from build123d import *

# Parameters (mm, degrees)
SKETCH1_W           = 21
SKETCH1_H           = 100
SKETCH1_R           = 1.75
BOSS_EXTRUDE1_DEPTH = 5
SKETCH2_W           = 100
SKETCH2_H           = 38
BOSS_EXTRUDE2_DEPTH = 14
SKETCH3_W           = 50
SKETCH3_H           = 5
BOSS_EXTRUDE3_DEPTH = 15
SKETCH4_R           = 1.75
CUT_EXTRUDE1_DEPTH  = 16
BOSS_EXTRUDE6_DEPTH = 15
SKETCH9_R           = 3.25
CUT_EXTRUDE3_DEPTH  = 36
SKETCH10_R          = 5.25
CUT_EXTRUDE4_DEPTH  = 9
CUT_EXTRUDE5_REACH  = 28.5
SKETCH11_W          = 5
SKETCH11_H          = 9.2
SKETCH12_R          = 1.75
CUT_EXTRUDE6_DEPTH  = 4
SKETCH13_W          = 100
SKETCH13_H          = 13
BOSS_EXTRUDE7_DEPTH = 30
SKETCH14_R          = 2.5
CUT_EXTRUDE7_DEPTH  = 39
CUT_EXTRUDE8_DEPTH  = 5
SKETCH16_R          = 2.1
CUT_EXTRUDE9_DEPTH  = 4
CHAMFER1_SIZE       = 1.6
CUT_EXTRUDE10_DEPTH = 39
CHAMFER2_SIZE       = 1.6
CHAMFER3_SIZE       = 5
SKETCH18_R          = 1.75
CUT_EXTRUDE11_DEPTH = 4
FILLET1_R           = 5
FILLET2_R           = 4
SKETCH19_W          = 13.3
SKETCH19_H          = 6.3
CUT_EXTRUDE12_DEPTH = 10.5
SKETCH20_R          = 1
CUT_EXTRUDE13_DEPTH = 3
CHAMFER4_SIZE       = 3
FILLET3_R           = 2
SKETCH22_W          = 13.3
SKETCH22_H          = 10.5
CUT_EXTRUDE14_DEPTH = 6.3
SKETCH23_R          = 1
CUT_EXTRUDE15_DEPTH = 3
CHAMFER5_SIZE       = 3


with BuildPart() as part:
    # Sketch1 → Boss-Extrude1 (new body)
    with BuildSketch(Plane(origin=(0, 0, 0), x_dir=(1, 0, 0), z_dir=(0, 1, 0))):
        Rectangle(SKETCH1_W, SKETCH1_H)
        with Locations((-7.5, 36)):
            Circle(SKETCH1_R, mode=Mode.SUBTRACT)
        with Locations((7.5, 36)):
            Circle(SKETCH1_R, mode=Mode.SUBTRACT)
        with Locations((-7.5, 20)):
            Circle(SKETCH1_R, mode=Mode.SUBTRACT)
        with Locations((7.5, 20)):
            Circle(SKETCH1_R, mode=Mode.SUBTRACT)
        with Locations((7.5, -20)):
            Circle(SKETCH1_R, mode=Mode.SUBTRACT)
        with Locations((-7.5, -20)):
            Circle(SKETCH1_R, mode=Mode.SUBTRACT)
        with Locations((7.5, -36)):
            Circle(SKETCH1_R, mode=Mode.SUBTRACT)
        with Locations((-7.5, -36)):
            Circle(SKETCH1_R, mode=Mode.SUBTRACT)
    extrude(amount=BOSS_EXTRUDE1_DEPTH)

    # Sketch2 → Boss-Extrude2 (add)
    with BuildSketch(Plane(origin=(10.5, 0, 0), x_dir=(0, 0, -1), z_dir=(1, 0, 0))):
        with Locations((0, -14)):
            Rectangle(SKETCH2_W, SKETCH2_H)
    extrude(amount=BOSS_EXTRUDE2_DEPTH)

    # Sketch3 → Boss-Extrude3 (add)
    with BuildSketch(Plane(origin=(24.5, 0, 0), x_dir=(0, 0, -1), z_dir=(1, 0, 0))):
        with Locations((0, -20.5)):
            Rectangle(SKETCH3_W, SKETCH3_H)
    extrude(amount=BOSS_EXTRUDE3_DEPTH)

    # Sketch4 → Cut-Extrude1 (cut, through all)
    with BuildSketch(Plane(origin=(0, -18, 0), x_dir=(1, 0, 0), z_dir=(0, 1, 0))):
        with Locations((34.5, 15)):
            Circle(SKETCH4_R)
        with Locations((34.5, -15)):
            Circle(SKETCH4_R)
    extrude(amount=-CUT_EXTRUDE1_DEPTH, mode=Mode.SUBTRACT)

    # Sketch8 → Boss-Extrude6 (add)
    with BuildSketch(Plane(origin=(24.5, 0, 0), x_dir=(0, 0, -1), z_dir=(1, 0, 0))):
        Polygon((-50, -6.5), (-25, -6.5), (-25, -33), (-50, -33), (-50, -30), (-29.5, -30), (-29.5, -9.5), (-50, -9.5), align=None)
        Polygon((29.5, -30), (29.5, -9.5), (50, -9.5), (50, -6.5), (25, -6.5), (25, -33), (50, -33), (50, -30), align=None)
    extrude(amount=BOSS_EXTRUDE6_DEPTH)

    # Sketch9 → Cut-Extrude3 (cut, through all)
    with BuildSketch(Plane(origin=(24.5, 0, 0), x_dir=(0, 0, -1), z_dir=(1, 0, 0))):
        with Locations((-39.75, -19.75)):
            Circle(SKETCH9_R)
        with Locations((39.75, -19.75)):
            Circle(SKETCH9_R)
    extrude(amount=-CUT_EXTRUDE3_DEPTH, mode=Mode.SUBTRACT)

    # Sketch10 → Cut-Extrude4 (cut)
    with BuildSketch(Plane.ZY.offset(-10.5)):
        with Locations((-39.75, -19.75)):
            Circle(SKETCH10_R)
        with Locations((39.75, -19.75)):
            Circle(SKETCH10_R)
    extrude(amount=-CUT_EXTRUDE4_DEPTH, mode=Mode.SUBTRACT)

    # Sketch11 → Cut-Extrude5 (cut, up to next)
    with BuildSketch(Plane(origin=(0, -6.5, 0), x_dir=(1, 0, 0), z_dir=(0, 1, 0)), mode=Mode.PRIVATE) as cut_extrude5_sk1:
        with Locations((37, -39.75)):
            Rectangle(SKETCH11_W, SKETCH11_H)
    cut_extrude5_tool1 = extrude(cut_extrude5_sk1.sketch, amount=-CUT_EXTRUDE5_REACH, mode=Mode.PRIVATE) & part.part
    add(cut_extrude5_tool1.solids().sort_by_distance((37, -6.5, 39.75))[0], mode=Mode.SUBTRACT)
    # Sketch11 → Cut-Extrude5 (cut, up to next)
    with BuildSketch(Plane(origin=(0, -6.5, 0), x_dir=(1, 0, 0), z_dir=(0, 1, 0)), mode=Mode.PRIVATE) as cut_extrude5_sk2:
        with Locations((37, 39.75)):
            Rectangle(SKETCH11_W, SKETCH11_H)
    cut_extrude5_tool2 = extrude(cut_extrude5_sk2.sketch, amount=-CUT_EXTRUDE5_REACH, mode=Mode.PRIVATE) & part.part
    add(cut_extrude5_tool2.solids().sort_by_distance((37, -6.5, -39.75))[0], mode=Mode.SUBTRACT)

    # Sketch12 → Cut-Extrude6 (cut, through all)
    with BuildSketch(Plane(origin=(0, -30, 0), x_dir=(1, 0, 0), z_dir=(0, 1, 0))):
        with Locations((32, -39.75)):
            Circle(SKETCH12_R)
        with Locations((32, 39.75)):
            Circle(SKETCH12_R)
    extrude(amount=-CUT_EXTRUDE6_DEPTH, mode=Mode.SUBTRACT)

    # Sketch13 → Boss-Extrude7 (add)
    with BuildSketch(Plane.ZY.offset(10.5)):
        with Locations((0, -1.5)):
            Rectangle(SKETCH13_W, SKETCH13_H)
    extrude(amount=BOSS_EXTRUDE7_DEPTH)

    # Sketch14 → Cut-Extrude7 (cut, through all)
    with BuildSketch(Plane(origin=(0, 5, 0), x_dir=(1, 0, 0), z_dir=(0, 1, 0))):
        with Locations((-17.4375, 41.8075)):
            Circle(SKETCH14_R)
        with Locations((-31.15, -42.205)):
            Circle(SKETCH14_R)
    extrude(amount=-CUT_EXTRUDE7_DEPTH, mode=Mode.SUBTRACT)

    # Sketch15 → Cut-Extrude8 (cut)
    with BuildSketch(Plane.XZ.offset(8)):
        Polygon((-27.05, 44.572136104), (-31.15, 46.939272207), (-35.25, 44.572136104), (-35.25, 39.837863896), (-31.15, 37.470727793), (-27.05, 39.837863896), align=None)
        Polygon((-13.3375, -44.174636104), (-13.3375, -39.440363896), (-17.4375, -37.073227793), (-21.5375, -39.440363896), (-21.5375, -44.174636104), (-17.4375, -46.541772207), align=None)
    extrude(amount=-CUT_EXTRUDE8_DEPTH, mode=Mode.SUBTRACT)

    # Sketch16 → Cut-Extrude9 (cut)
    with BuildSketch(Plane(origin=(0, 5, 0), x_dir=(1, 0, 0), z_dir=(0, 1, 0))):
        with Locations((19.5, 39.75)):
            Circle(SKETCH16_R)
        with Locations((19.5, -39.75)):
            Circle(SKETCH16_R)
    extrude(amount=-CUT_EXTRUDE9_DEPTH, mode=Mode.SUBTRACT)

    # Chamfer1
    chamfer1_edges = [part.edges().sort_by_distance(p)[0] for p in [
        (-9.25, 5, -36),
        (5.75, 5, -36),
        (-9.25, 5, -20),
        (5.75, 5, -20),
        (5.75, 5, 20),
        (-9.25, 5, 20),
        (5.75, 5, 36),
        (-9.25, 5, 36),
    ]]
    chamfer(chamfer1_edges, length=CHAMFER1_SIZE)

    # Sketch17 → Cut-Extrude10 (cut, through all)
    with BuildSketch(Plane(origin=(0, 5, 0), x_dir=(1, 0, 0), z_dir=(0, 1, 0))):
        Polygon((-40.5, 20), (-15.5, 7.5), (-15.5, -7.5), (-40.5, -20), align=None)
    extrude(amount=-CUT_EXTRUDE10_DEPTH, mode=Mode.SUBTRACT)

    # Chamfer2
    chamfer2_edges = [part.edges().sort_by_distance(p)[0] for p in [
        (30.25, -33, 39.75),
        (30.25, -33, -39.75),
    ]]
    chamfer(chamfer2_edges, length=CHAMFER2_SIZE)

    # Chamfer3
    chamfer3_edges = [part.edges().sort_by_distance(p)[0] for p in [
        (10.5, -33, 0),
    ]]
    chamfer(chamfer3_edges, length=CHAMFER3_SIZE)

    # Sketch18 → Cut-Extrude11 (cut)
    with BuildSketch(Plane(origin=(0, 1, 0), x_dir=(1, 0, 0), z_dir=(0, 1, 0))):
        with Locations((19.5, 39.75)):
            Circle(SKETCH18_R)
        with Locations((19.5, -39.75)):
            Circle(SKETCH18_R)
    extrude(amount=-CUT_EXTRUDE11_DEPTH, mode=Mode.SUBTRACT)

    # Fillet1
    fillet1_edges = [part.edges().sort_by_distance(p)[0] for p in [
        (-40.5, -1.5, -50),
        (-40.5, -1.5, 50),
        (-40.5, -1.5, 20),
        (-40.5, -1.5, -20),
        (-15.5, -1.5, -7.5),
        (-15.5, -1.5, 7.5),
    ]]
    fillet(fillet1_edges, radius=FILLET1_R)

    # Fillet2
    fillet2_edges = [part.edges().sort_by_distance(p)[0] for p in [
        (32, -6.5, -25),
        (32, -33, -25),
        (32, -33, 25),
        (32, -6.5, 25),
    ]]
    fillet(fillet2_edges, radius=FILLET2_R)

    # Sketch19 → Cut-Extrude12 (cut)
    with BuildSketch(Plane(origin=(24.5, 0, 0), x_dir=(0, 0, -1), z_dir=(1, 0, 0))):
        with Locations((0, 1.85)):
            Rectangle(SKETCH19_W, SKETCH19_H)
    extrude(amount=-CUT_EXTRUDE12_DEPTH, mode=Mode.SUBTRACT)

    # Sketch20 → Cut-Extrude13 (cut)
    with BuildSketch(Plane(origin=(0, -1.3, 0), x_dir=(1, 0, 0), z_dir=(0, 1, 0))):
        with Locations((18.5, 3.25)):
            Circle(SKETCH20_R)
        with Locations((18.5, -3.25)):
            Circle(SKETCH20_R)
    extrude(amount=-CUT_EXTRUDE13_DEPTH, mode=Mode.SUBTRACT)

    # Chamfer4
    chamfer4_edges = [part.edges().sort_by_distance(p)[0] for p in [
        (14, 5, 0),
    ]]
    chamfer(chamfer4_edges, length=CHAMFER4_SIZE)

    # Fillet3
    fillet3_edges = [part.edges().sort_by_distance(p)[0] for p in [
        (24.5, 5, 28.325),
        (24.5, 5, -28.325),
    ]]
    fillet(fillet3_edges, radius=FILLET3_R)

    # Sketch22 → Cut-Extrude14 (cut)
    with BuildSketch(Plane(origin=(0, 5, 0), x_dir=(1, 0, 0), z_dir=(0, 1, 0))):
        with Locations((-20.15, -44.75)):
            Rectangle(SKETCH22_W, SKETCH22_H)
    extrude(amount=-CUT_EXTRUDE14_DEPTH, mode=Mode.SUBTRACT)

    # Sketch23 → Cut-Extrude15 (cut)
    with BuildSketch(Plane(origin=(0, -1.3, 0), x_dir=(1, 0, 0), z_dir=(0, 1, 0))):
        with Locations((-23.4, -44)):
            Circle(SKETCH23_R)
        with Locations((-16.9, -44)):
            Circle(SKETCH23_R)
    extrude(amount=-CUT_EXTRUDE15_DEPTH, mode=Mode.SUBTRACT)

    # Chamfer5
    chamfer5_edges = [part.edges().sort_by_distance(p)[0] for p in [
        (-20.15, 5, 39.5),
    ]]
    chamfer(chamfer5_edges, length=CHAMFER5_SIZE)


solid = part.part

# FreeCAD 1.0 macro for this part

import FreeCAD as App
import Part
import Sketcher
from FreeCAD import Vector
Q = App.Units.Quantity


def edges_at(feature, points):
    """Names of the edges that pass closest to the given points."""
    edges = feature.Shape.Edges
    near = lambda p: min(range(len(edges)), key=lambda i: edges[i].distToShape(Part.Vertex(*p))[0])
    return sorted({f"Edge{near(p) + 1}" for p in points})


def add_polygon(sketch, points):
    """Adds a closed chain of lines whose ends are joined by coincident constraints."""
    first, n = sketch.GeometryCount, len(points)
    for a, b in zip(points, points[1:] + points[:1]):
        sketch.addGeometry(Part.LineSegment(App.Vector(*a, 0), App.Vector(*b, 0)), False)
    for i in range(n):
        sketch.addConstraint(Sketcher.Constraint("Coincident", first + i, 2, first + (i + 1) % n, 1))

doc = App.newDocument("Part")
body = doc.addObject("PartDesign::Body", "Body")

# Sketch on XZ plane
sketch1 = doc.addObject("Sketcher::SketchObject", "Sketch")
body.addObject(sketch1)
sketch1.AttachmentSupport = (doc.XZ_Plane, [""])
sketch1.MapMode = "FlatFace"
add_polygon(sketch1, [(-10.5, -50), (-10.5, 50), (10.5, 50), (10.5, -50)])  # lines 0-3
sketch1.addGeometry(Part.Circle(Vector(-7.5, 36, 0), Vector(0, 0, 1), 1.8), False)  # 4
sketch1.addGeometry(Part.Circle(Vector(-7.5, 20, 0), Vector(0, 0, 1), 1.8), False)  # 5
sketch1.addGeometry(Part.Circle(Vector(7.5, 36, 0), Vector(0, 0, 1), 1.8), False)  # 6
sketch1.addGeometry(Part.Circle(Vector(7.5, 20, 0), Vector(0, 0, 1), 1.8), False)  # 7
sketch1.addGeometry(Part.Circle(Vector(-7.5, -20, 0), Vector(0, 0, 1), 1.8), False)  # 8
sketch1.addGeometry(Part.Circle(Vector(-7.5, -36, 0), Vector(0, 0, 1), 1.8), False)  # 9
sketch1.addGeometry(Part.Circle(Vector(7.5, -20, 0), Vector(0, 0, 1), 1.8), False)  # 10
sketch1.addGeometry(Part.Circle(Vector(7.5, -36, 0), Vector(0, 0, 1), 1.8), False)  # 11
sketch1.addConstraint([
    Sketcher.Constraint("Vertical", 0),
    Sketcher.Constraint("Horizontal", 1),
    Sketcher.Constraint("Vertical", 2),
    Sketcher.Constraint("Horizontal", 3),
    Sketcher.Constraint("Equal", 4, 5),
    Sketcher.Constraint("Equal", 5, 6),
    Sketcher.Constraint("Equal", 6, 7),
    Sketcher.Constraint("Equal", 7, 8),
    Sketcher.Constraint("Equal", 8, 9),
    Sketcher.Constraint("Equal", 9, 10),
    Sketcher.Constraint("Equal", 10, 11),
    Sketcher.Constraint("Symmetric", 7, 3, 8, 3, -1, 1),
    Sketcher.Constraint("Symmetric", 6, 3, 9, 3, -1, 1),
    Sketcher.Constraint("Symmetric", 5, 3, 10, 3, -1, 1),
    Sketcher.Constraint("Symmetric", 4, 3, 11, 3, -1, 1),
    Sketcher.Constraint("Symmetric", 0, 2, 2, 2, -1, 1),
    Sketcher.Constraint("Symmetric", 4, 3, 6, 3, -2),
    Sketcher.Constraint("Symmetric", 5, 3, 7, 3, -2),
    Sketcher.Constraint("Vertical", 4, 3, 5, 3),
    Sketcher.Constraint("Diameter", 4, 3.5),
    Sketcher.Constraint("DistanceX", 1, 1, 1, 2, 21.0),
    Sketcher.Constraint("DistanceY", 0, 1, 0, 2, 100.0),
    Sketcher.Constraint("DistanceY", -1, 1, 4, 3, 36.0),
    Sketcher.Constraint("DistanceY", -1, 1, 5, 3, 20.0),
    Sketcher.Constraint("DistanceX", 4, 3, 6, 3, 15.0),
])
pad1 = doc.addObject("PartDesign::Pad", "Pad")
body.addObject(pad1)
pad1.Profile = sketch1
pad1.Length = 5
pad1.Reversed = True

# Sketch on YZ plane
sketch2 = doc.addObject("Sketcher::SketchObject", "Sketch001")
body.addObject(sketch2)
sketch2.AttachmentSupport = (doc.YZ_Plane, [""])
sketch2.MapMode = "FlatFace"
sketch2.AttachmentOffset = App.Placement(Vector(0, 0, 10.5), App.Rotation())
add_polygon(sketch2, [(5, 50), (-33, 50), (-33, -50), (5, -50)])  # lines 0-3
sketch2.addConstraint([
    Sketcher.Constraint("Horizontal", 0),
    Sketcher.Constraint("Vertical", 1),
    Sketcher.Constraint("Horizontal", 2),
    Sketcher.Constraint("Vertical", 3),
    Sketcher.Constraint("DistanceX", 0, 2, 0, 1, 38.0),
    Sketcher.Constraint("DistanceY", 1, 2, 1, 1, 100.0),
    Sketcher.Constraint("DistanceX", 0, 2, -1, 1, 33.0),
    Sketcher.Constraint("DistanceY", -1, 1, 0, 2, 50.0),
])
pad2 = doc.addObject("PartDesign::Pad", "Pad001")
body.addObject(pad2)
pad2.Profile = sketch2
pad2.Length = 14

# Sketch on YZ plane
sketch3 = doc.addObject("Sketcher::SketchObject", "Sketch002")
body.addObject(sketch3)
sketch3.AttachmentSupport = (doc.YZ_Plane, [""])
sketch3.MapMode = "FlatFace"
sketch3.AttachmentOffset = App.Placement(Vector(0, 0, 24.5), App.Rotation())
add_polygon(sketch3, [(-18, 25), (-23, 25), (-23, -25), (-18, -25)])  # lines 0-3
sketch3.addConstraint([
    Sketcher.Constraint("Horizontal", 0),
    Sketcher.Constraint("Vertical", 1),
    Sketcher.Constraint("Horizontal", 2),
    Sketcher.Constraint("Vertical", 3),
    Sketcher.Constraint("DistanceX", 0, 2, 0, 1, 5.0),
    Sketcher.Constraint("DistanceY", 1, 2, 1, 1, 50.0),
    Sketcher.Constraint("DistanceX", 0, 2, -1, 1, 23.0),
    Sketcher.Constraint("DistanceY", -1, 1, 0, 2, 25.0),
])
pad3 = doc.addObject("PartDesign::Pad", "Pad002")
body.addObject(pad3)
pad3.Profile = sketch3
pad3.Length = 15

# Sketch on XZ plane
sketch4 = doc.addObject("Sketcher::SketchObject", "Sketch003")
body.addObject(sketch4)
sketch4.AttachmentSupport = (doc.XZ_Plane, [""])
sketch4.MapMode = "FlatFace"
sketch4.AttachmentOffset = App.Placement(Vector(0, 0, 18), App.Rotation())
sketch4.addGeometry([
    Part.Circle(Vector(34.5, -15, 0), Vector(0, 0, 1), 1.8),
    Part.Circle(Vector(34.5, 15, 0), Vector(0, 0, 1), 1.8),
], False)
sketch4.addConstraint([
    Sketcher.Constraint("Equal", 0, 1),
    Sketcher.Constraint("Symmetric", 0, 3, 1, 3, -1),
    Sketcher.Constraint("Diameter", 0, 3.5),
    Sketcher.Constraint("DistanceY", 0, 3, -1, 1, 15.0),
    Sketcher.Constraint("DistanceX", -1, 1, 0, 3, 34.5),
])
pocket1 = doc.addObject("PartDesign::Pocket", "Pocket")
body.addObject(pocket1)
pocket1.Profile = sketch4
pocket1.Type = "ThroughAll"
pocket1.Reversed = True

# Sketch on YZ plane
sketch5 = doc.addObject("Sketcher::SketchObject", "Sketch004")
body.addObject(sketch5)
sketch5.AttachmentSupport = (doc.YZ_Plane, [""])
sketch5.MapMode = "FlatFace"
sketch5.AttachmentOffset = App.Placement(Vector(0, 0, 24.5), App.Rotation())
add_polygon(sketch5, [(-6.5, 25), (-6.5, 50), (-9.5, 50), (-9.5, 29.5), (-30, 29.5), (-30, 50), (-33, 50), (-33, 25)])  # lines 0-7
add_polygon(sketch5, [(-30, -29.5), (-9.5, -29.5), (-9.5, -50), (-6.5, -50), (-6.5, -25), (-33, -25), (-33, -50), (-30, -50)])  # lines 8-15
sketch5.addConstraint([
    Sketcher.Constraint("Vertical", 0),
    Sketcher.Constraint("Horizontal", 1),
    Sketcher.Constraint("Vertical", 2),
    Sketcher.Constraint("Horizontal", 3),
    Sketcher.Constraint("Vertical", 4),
    Sketcher.Constraint("Horizontal", 5),
    Sketcher.Constraint("Vertical", 6),
    Sketcher.Constraint("Horizontal", 7),
    Sketcher.Constraint("Horizontal", 8),
    Sketcher.Constraint("Vertical", 9),
    Sketcher.Constraint("Horizontal", 10),
    Sketcher.Constraint("Vertical", 11),
    Sketcher.Constraint("Horizontal", 12),
    Sketcher.Constraint("Vertical", 13),
    Sketcher.Constraint("Horizontal", 14),
    Sketcher.Constraint("Vertical", 15),
    Sketcher.Constraint("Symmetric", 2, 2, 8, 2, -1),
    Sketcher.Constraint("Symmetric", 0, 2, 10, 2, -1),
    Sketcher.Constraint("Symmetric", 6, 2, 12, 2, -1),
    Sketcher.Constraint("Symmetric", 4, 2, 14, 2, -1),
    Sketcher.Constraint("Horizontal", 1, 2, 4, 2),
    Sketcher.Constraint("Equal", 1, 5),
    Sketcher.Constraint("Equal", 8, 2),
    Sketcher.Constraint("DistanceX", 1, 2, 1, 1, 3.0),
    Sketcher.Constraint("DistanceY", 0, 1, 0, 2, 25.0),
    Sketcher.Constraint("DistanceX", 3, 2, 3, 1, 20.5),
    Sketcher.Constraint("DistanceY", -1, 1, 0, 2, 50.0),
    Sketcher.Constraint("DistanceX", 3, 2, -1, 1, 30.0),
])
pad4 = doc.addObject("PartDesign::Pad", "Pad003")
body.addObject(pad4)
pad4.Profile = sketch5
pad4.Length = 15

# Sketch on YZ plane
sketch6 = doc.addObject("Sketcher::SketchObject", "Sketch005")
body.addObject(sketch6)
sketch6.AttachmentSupport = (doc.YZ_Plane, [""])
sketch6.MapMode = "FlatFace"
sketch6.AttachmentOffset = App.Placement(Vector(0, 0, 24.5), App.Rotation())
sketch6.addGeometry([
    Part.Circle(Vector(-19.8, 39.8, 0), Vector(0, 0, 1), 3.2),
    Part.Circle(Vector(-19.8, -39.8, 0), Vector(0, 0, 1), 3.2),
], False)
sketch6.addConstraint([
    Sketcher.Constraint("Equal", 0, 1),
    Sketcher.Constraint("Symmetric", 0, 3, 1, 3, -1),
    Sketcher.Constraint("Diameter", 0, 6.5),
    Sketcher.Constraint("DistanceY", 1, 3, 0, 3, 79.5),
    Sketcher.Constraint("DistanceX", 0, 3, -1, 1, 19.75),
])
pocket2 = doc.addObject("PartDesign::Pocket", "Pocket001")
body.addObject(pocket2)
pocket2.Profile = sketch6
pocket2.Type = "ThroughAll"

# Sketch on YZ plane
sketch7 = doc.addObject("Sketcher::SketchObject", "Sketch006")
body.addObject(sketch7)
sketch7.AttachmentSupport = (doc.YZ_Plane, [""])
sketch7.MapMode = "FlatFace"
sketch7.AttachmentOffset = App.Placement(Vector(0, 0, 10.5), App.Rotation())
sketch7.addGeometry([
    Part.Circle(Vector(-20, -40, 0), Vector(0, 0, 1), 5),
    Part.Circle(Vector(-20, 40, 0), Vector(0, 0, 1), 5),
], False)
sketch7.addConstraint([
    Sketcher.Constraint("Equal", 0, 1),
    Sketcher.Constraint("Symmetric", 0, 3, 1, 3, -1),
    Sketcher.Constraint("Diameter", 0, 10.5),
    Sketcher.Constraint("DistanceY", 0, 3, 1, 3, 79.5),
    Sketcher.Constraint("DistanceX", 0, 3, -1, 1, 19.75),
])
pocket3 = doc.addObject("PartDesign::Pocket", "Pocket002")
body.addObject(pocket3)
pocket3.Profile = sketch7
pocket3.Length = 9
pocket3.Reversed = True

# Sketch on XZ plane
sketch8 = doc.addObject("Sketcher::SketchObject", "Sketch007")
body.addObject(sketch8)
sketch8.AttachmentSupport = (doc.XZ_Plane, [""])
sketch8.MapMode = "FlatFace"
sketch8.AttachmentOffset = App.Placement(Vector(0, 0, 6.5), App.Rotation())
add_polygon(sketch8, [(34, 35), (34, 44), (40, 44), (40, 35)])  # lines 0-3
sketch8.addConstraint([
    Sketcher.Constraint("Vertical", 0),
    Sketcher.Constraint("Horizontal", 1),
    Sketcher.Constraint("Vertical", 2),
    Sketcher.Constraint("Horizontal", 3),
    Sketcher.Constraint("DistanceX", 1, 1, 1, 2, 5.0),
    Sketcher.Constraint("DistanceY", 0, 1, 0, 2, 9.2),
    Sketcher.Constraint("DistanceX", -1, 1, 0, 2, 34.5),
    Sketcher.Constraint("DistanceY", -1, 1, 0, 2, 44.35),
])
pocket4 = doc.addObject("PartDesign::Pocket", "Pocket003")
body.addObject(pocket4)
pocket4.Profile = sketch8
pocket4.Type = "UpToFirst"
pocket4.Reversed = True

# Sketch on XZ plane
sketch9 = doc.addObject("Sketcher::SketchObject", "Sketch008")
body.addObject(sketch9)
sketch9.AttachmentSupport = (doc.XZ_Plane, [""])
sketch9.MapMode = "FlatFace"
sketch9.AttachmentOffset = App.Placement(Vector(0, 0, 6.5), App.Rotation())
add_polygon(sketch9, [(34, -44), (34, -35), (40, -35), (40, -44)])  # lines 0-3
sketch9.addConstraint([
    Sketcher.Constraint("Vertical", 0),
    Sketcher.Constraint("Horizontal", 1),
    Sketcher.Constraint("Vertical", 2),
    Sketcher.Constraint("Horizontal", 3),
    Sketcher.Constraint("DistanceX", 1, 1, 1, 2, 5.0),
    Sketcher.Constraint("DistanceY", 0, 1, 0, 2, 9.2),
    Sketcher.Constraint("DistanceX", -1, 1, 0, 2, 34.5),
    Sketcher.Constraint("DistanceY", 0, 2, -1, 1, 35.15),
])
pocket5 = doc.addObject("PartDesign::Pocket", "Pocket004")
body.addObject(pocket5)
pocket5.Profile = sketch9
pocket5.Type = "UpToFirst"
pocket5.Reversed = True

# Sketch on XZ plane
sketch10 = doc.addObject("Sketcher::SketchObject", "Sketch009")
body.addObject(sketch10)
sketch10.AttachmentSupport = (doc.XZ_Plane, [""])
sketch10.MapMode = "FlatFace"
sketch10.AttachmentOffset = App.Placement(Vector(0, 0, 30), App.Rotation())
sketch10.addGeometry([
    Part.Circle(Vector(32, 39.8, 0), Vector(0, 0, 1), 1.8),
    Part.Circle(Vector(32, -39.8, 0), Vector(0, 0, 1), 1.8),
], False)
sketch10.addConstraint([
    Sketcher.Constraint("Equal", 0, 1),
    Sketcher.Constraint("Symmetric", 0, 3, 1, 3, -1),
    Sketcher.Constraint("Diameter", 0, 3.5),
    Sketcher.Constraint("DistanceX", -1, 1, 0, 3, 32.0),
    Sketcher.Constraint("DistanceY", 1, 3, 0, 3, 79.5),
])
pocket6 = doc.addObject("PartDesign::Pocket", "Pocket005")
body.addObject(pocket6)
pocket6.Profile = sketch10
pocket6.Type = "ThroughAll"
pocket6.Reversed = True

# Sketch on YZ plane
sketch11 = doc.addObject("Sketcher::SketchObject", "Sketch010")
body.addObject(sketch11)
sketch11.AttachmentSupport = (doc.YZ_Plane, [""])
sketch11.MapMode = "FlatFace"
sketch11.AttachmentOffset = App.Placement(Vector(0, 0, -10.5), App.Rotation())
add_polygon(sketch11, [(5, -50), (-8, -50), (-8, 50), (5, 50)])  # lines 0-3
sketch11.addConstraint([
    Sketcher.Constraint("Horizontal", 0),
    Sketcher.Constraint("Vertical", 1),
    Sketcher.Constraint("Horizontal", 2),
    Sketcher.Constraint("Vertical", 3),
    Sketcher.Constraint("DistanceX", 0, 2, 0, 1, 13.0),
    Sketcher.Constraint("DistanceY", 1, 1, 1, 2, 100.0),
    Sketcher.Constraint("DistanceX", 0, 2, -1, 1, 8.0),
    Sketcher.Constraint("DistanceY", 0, 2, -1, 1, 50.0),
])
pad5 = doc.addObject("PartDesign::Pad", "Pad004")
body.addObject(pad5)
pad5.Profile = sketch11
pad5.Length = 30
pad5.Reversed = True

# Sketch on XZ plane
sketch12 = doc.addObject("Sketcher::SketchObject", "Sketch011")
body.addObject(sketch12)
sketch12.AttachmentSupport = (doc.XZ_Plane, [""])
sketch12.MapMode = "FlatFace"
sketch12.AttachmentOffset = App.Placement(Vector(0, 0, -5), App.Rotation())
sketch12.addGeometry([
    Part.Circle(Vector(-17.4, -41.8, 0), Vector(0, 0, 1), 2.5),
    Part.Circle(Vector(-31.1, 42.2, 0), Vector(0, 0, 1), 2.5),
], False)
sketch12.addConstraint([
    Sketcher.Constraint("Equal", 0, 1),
    Sketcher.Constraint("Diameter", 0, 5.0),
    Sketcher.Constraint("DistanceX", 1, 3, -1, 1, 31.15),
    Sketcher.Constraint("DistanceY", -1, 1, 1, 3, 42.205),
    Sketcher.Constraint("DistanceX", 0, 3, -1, 1, 17.4375),
    Sketcher.Constraint("DistanceY", 0, 3, -1, 1, 41.8075),
])
pocket7 = doc.addObject("PartDesign::Pocket", "Pocket006")
body.addObject(pocket7)
pocket7.Profile = sketch12
pocket7.Type = "ThroughAll"
pocket7.Reversed = True

# Sketch on XZ plane
sketch13 = doc.addObject("Sketcher::SketchObject", "Sketch012")
body.addObject(sketch13)
sketch13.AttachmentSupport = (doc.XZ_Plane, [""])
sketch13.MapMode = "FlatFace"
sketch13.AttachmentOffset = App.Placement(Vector(0, 0, 8), App.Rotation())
add_polygon(sketch13, [(-27.1, 44.6), (-31.1, 46.9), (-35.2, 44.6), (-35.2, 39.8), (-31.1, 37.5), (-27.1, 39.8)])  # lines 0-5
add_polygon(sketch13, [(-13.3, -44.2), (-13.3, -39.4), (-17.4, -37.1), (-21.5, -39.4), (-21.5, -44.2), (-17.4, -46.5)])  # lines 6-11
sketch13.addConstraint([
    Sketcher.Constraint("Vertical", 2),
    Sketcher.Constraint("Vertical", 5),
    Sketcher.Constraint("Vertical", 6),
    Sketcher.Constraint("Vertical", 9),
    Sketcher.Constraint("Parallel", 0, 3),
    Sketcher.Constraint("Parallel", 1, 4),
    Sketcher.Constraint("Parallel", 3, 7),
    Sketcher.Constraint("Parallel", 4, 8),
    Sketcher.Constraint("Parallel", 7, 10),
    Sketcher.Constraint("Parallel", 8, 11),
    Sketcher.Constraint("Horizontal", 2, 2, 4, 2),
    Sketcher.Constraint("Horizontal", 1, 2, 5, 2),
    Sketcher.Constraint("Horizontal", 6, 2, 8, 2),
    Sketcher.Constraint("Horizontal", 9, 2, 11, 2),
    Sketcher.Constraint("Vertical", 0, 2, 3, 2),
    Sketcher.Constraint("Equal", 5, 6),
    Sketcher.Constraint("Equal", 4, 7),
    Sketcher.Constraint("Angle", 0, Q("150 deg")),
    Sketcher.Constraint("DistanceX", 1, 2, 0, 2, 4.1),
    Sketcher.Constraint("DistanceX", 0, 2, -1, 1, 31.15),
    Sketcher.Constraint("DistanceX", 6, 2, -1, 1, 13.3375),
    Sketcher.Constraint("DistanceY", 6, 2, 5, 2, 84.0125),
    Sketcher.Constraint("DistanceY", 2, 2, 2, 1, 4.734272),
    Sketcher.Constraint("DistanceY", -1, 1, 0, 2, 46.939272),
])
pocket8 = doc.addObject("PartDesign::Pocket", "Pocket007")
body.addObject(pocket8)
pocket8.Profile = sketch13
pocket8.Length = 5

# Sketch on XZ plane
sketch14 = doc.addObject("Sketcher::SketchObject", "Sketch013")
body.addObject(sketch14)
sketch14.AttachmentSupport = (doc.XZ_Plane, [""])
sketch14.MapMode = "FlatFace"
sketch14.AttachmentOffset = App.Placement(Vector(0, 0, -5), App.Rotation())
sketch14.addGeometry([
    Part.Circle(Vector(19.5, -39.8, 0), Vector(0, 0, 1), 2.1),
    Part.Circle(Vector(19.5, 39.8, 0), Vector(0, 0, 1), 2.1),
], False)
sketch14.addConstraint([
    Sketcher.Constraint("Equal", 0, 1),
    Sketcher.Constraint("Symmetric", 0, 3, 1, 3, -1),
    Sketcher.Constraint("Diameter", 0, 4.2),
    Sketcher.Constraint("DistanceX", -1, 1, 0, 3, 19.5),
    Sketcher.Constraint("DistanceY", 0, 3, 1, 3, 79.5),
])
pocket9 = doc.addObject("PartDesign::Pocket", "Pocket008")
body.addObject(pocket9)
pocket9.Profile = sketch14
pocket9.Length = 4
pocket9.Reversed = True
doc.recompute()

chamfer = doc.addObject("PartDesign::Chamfer", "Chamfer")
body.addObject(chamfer)
chamfer.Base = (pocket9, edges_at(pocket9, [
    (-9.25, 5, -36),
    (5.75, 5, -36),
    (-9.25, 5, -20),
    (5.75, 5, -20),
    (5.75, 5, 20),
    (-9.25, 5, 20),
    (5.75, 5, 36),
    (-9.25, 5, 36),
]))
chamfer.Size = 1.6

# Sketch on XZ plane
sketch15 = doc.addObject("Sketcher::SketchObject", "Sketch014")
body.addObject(sketch15)
sketch15.AttachmentSupport = (doc.XZ_Plane, [""])
sketch15.MapMode = "FlatFace"
sketch15.AttachmentOffset = App.Placement(Vector(0, 0, -5), App.Rotation())
add_polygon(sketch15, [(-16, -8), (-40, -20), (-40, 20), (-16, 8)])  # lines 0-3
sketch15.addConstraint([
    Sketcher.Constraint("Vertical", 1),
    Sketcher.Constraint("Vertical", 3),
    Sketcher.Constraint("Equal", 0, 2),
    Sketcher.Constraint("DistanceY", 1, 1, 1, 2, 40.0),
    Sketcher.Constraint("DistanceY", 3, 2, 3, 1, 15.0),
    Sketcher.Constraint("DistanceY", 0, 2, -1, 1, 20.0),
    Sketcher.Constraint("DistanceX", 1, 2, 2, 2, 25.0),
    Sketcher.Constraint("DistanceX", 0, 2, -1, 1, 40.5),
])
pocket10 = doc.addObject("PartDesign::Pocket", "Pocket009")
body.addObject(pocket10)
pocket10.Profile = sketch15
pocket10.Type = "ThroughAll"
pocket10.Reversed = True
doc.recompute()

chamfer2 = doc.addObject("PartDesign::Chamfer", "Chamfer001")
body.addObject(chamfer2)
chamfer2.Base = (pocket10, edges_at(pocket10, [(30.25, -33, 39.75), (30.25, -33, -39.75)]))
chamfer2.Size = 1.6
doc.recompute()

chamfer3 = doc.addObject("PartDesign::Chamfer", "Chamfer002")
body.addObject(chamfer3)
chamfer3.Base = (chamfer2, edges_at(chamfer2, [(10.5, -33, 0)]))
chamfer3.Size = 5

# Sketch on XZ plane
sketch16 = doc.addObject("Sketcher::SketchObject", "Sketch015")
body.addObject(sketch16)
sketch16.AttachmentSupport = (doc.XZ_Plane, [""])
sketch16.MapMode = "FlatFace"
sketch16.AttachmentOffset = App.Placement(Vector(0, 0, -1), App.Rotation())
sketch16.addGeometry([
    Part.Circle(Vector(19.5, -39.8, 0), Vector(0, 0, 1), 1.8),
    Part.Circle(Vector(19.5, 39.8, 0), Vector(0, 0, 1), 1.8),
], False)
sketch16.addConstraint([
    Sketcher.Constraint("Equal", 0, 1),
    Sketcher.Constraint("Symmetric", 0, 3, 1, 3, -1),
    Sketcher.Constraint("Diameter", 0, 3.5),
    Sketcher.Constraint("DistanceX", -1, 1, 0, 3, 19.5),
    Sketcher.Constraint("DistanceY", 0, 3, 1, 3, 79.5),
])
pocket11 = doc.addObject("PartDesign::Pocket", "Pocket010")
body.addObject(pocket11)
pocket11.Profile = sketch16
pocket11.Length = 4
pocket11.Reversed = True
doc.recompute()

fillet = doc.addObject("PartDesign::Fillet", "Fillet")
body.addObject(fillet)
fillet.Base = (pocket11, edges_at(pocket11, [
    (-40.5, -1.5, -50),
    (-40.5, -1.5, 50),
    (-40.5, -1.5, 20),
    (-40.5, -1.5, -20),
    (-15.5, -1.5, -7.5),
    (-15.5, -1.5, 7.5),
]))
fillet.Radius = 5
doc.recompute()

fillet2 = doc.addObject("PartDesign::Fillet", "Fillet001")
body.addObject(fillet2)
fillet2.Base = (fillet, edges_at(fillet, [
    (32, -6.5, -25),
    (32, -33, -25),
    (32, -33, 25),
    (32, -6.5, 25),
]))
fillet2.Radius = 4

# Sketch on YZ plane
sketch17 = doc.addObject("Sketcher::SketchObject", "Sketch016")
body.addObject(sketch17)
sketch17.AttachmentSupport = (doc.YZ_Plane, [""])
sketch17.MapMode = "FlatFace"
sketch17.AttachmentOffset = App.Placement(Vector(0, 0, 24.5), App.Rotation())
add_polygon(sketch17, [(5, 7), (-1, 7), (-1, -7), (5, -7)])  # lines 0-3
sketch17.addConstraint([
    Sketcher.Constraint("Horizontal", 0),
    Sketcher.Constraint("Vertical", 1),
    Sketcher.Constraint("Horizontal", 2),
    Sketcher.Constraint("Vertical", 3),
    Sketcher.Constraint("DistanceX", 0, 2, 0, 1, 6.3),
    Sketcher.Constraint("DistanceY", 1, 2, 1, 1, 13.3),
    Sketcher.Constraint("DistanceX", -1, 1, 2, 2, 5.0),
    Sketcher.Constraint("DistanceY", -1, 1, 0, 2, 6.65),
])
pocket12 = doc.addObject("PartDesign::Pocket", "Pocket011")
body.addObject(pocket12)
pocket12.Profile = sketch17
pocket12.Length = 10.5

# Sketch on XZ plane
sketch18 = doc.addObject("Sketcher::SketchObject", "Sketch017")
body.addObject(sketch18)
sketch18.AttachmentSupport = (doc.XZ_Plane, [""])
sketch18.MapMode = "FlatFace"
sketch18.AttachmentOffset = App.Placement(Vector(0, 0, 1.3), App.Rotation())
sketch18.addGeometry([
    Part.Circle(Vector(18.5, -3.2, 0), Vector(0, 0, 1), 1),
    Part.Circle(Vector(18.5, 3.2, 0), Vector(0, 0, 1), 1),
], False)
sketch18.addConstraint([
    Sketcher.Constraint("Equal", 0, 1),
    Sketcher.Constraint("Symmetric", 0, 3, 1, 3, -1),
    Sketcher.Constraint("Diameter", 0, 2.0),
    Sketcher.Constraint("DistanceX", -1, 1, 0, 3, 18.5),
    Sketcher.Constraint("DistanceY", 0, 3, 1, 3, 6.5),
])
pocket13 = doc.addObject("PartDesign::Pocket", "Pocket012")
body.addObject(pocket13)
pocket13.Profile = sketch18
pocket13.Length = 3
pocket13.Reversed = True
doc.recompute()

chamfer4 = doc.addObject("PartDesign::Chamfer", "Chamfer003")
body.addObject(chamfer4)
chamfer4.Base = (pocket13, edges_at(pocket13, [(14, 5, 0)]))
chamfer4.Size = 3
doc.recompute()

fillet3 = doc.addObject("PartDesign::Fillet", "Fillet002")
body.addObject(fillet3)
fillet3.Base = (chamfer4, edges_at(chamfer4, [(24.5, 5, 28.325), (24.5, 5, -28.325)]))
fillet3.Radius = 2

# Sketch on XZ plane
sketch19 = doc.addObject("Sketcher::SketchObject", "Sketch018")
body.addObject(sketch19)
sketch19.AttachmentSupport = (doc.XZ_Plane, [""])
sketch19.MapMode = "FlatFace"
sketch19.AttachmentOffset = App.Placement(Vector(0, 0, -5), App.Rotation())
add_polygon(sketch19, [(-27, 40), (-27, 50), (-14, 50), (-14, 40)])  # lines 0-3
sketch19.addConstraint([
    Sketcher.Constraint("Vertical", 0),
    Sketcher.Constraint("Horizontal", 1),
    Sketcher.Constraint("Vertical", 2),
    Sketcher.Constraint("Horizontal", 3),
    Sketcher.Constraint("DistanceX", 1, 1, 1, 2, 13.3),
    Sketcher.Constraint("DistanceY", 0, 1, 0, 2, 10.5),
    Sketcher.Constraint("DistanceY", -1, 1, 0, 2, 50.0),
    Sketcher.Constraint("DistanceX", 0, 2, -1, 1, 26.8),
])
pocket14 = doc.addObject("PartDesign::Pocket", "Pocket013")
body.addObject(pocket14)
pocket14.Profile = sketch19
pocket14.Length = 6.3
pocket14.Reversed = True

# Sketch on XZ plane
sketch20 = doc.addObject("Sketcher::SketchObject", "Sketch019")
body.addObject(sketch20)
sketch20.AttachmentSupport = (doc.XZ_Plane, [""])
sketch20.MapMode = "FlatFace"
sketch20.AttachmentOffset = App.Placement(Vector(0, 0, 1.3), App.Rotation())
sketch20.addGeometry([
    Part.Circle(Vector(-23.4, 44, 0), Vector(0, 0, 1), 1),
    Part.Circle(Vector(-16.9, 44, 0), Vector(0, 0, 1), 1),
], False)
sketch20.addConstraint([
    Sketcher.Constraint("Equal", 0, 1),
    Sketcher.Constraint("Horizontal", 0, 3, 1, 3),
    Sketcher.Constraint("Diameter", 0, 2.0),
    Sketcher.Constraint("DistanceY", -1, 1, 0, 3, 44.0),
    Sketcher.Constraint("DistanceX", 0, 3, -1, 1, 23.4),
    Sketcher.Constraint("DistanceX", 1, 3, -1, 1, 16.9),
])
pocket15 = doc.addObject("PartDesign::Pocket", "Pocket014")
body.addObject(pocket15)
pocket15.Profile = sketch20
pocket15.Length = 3
pocket15.Reversed = True
doc.recompute()

chamfer5 = doc.addObject("PartDesign::Chamfer", "Chamfer004")
body.addObject(chamfer5)
chamfer5.Base = (pocket15, edges_at(pocket15, [(-20.15, 5, 39.5)]))
chamfer5.Size = 3

doc.recompute()
